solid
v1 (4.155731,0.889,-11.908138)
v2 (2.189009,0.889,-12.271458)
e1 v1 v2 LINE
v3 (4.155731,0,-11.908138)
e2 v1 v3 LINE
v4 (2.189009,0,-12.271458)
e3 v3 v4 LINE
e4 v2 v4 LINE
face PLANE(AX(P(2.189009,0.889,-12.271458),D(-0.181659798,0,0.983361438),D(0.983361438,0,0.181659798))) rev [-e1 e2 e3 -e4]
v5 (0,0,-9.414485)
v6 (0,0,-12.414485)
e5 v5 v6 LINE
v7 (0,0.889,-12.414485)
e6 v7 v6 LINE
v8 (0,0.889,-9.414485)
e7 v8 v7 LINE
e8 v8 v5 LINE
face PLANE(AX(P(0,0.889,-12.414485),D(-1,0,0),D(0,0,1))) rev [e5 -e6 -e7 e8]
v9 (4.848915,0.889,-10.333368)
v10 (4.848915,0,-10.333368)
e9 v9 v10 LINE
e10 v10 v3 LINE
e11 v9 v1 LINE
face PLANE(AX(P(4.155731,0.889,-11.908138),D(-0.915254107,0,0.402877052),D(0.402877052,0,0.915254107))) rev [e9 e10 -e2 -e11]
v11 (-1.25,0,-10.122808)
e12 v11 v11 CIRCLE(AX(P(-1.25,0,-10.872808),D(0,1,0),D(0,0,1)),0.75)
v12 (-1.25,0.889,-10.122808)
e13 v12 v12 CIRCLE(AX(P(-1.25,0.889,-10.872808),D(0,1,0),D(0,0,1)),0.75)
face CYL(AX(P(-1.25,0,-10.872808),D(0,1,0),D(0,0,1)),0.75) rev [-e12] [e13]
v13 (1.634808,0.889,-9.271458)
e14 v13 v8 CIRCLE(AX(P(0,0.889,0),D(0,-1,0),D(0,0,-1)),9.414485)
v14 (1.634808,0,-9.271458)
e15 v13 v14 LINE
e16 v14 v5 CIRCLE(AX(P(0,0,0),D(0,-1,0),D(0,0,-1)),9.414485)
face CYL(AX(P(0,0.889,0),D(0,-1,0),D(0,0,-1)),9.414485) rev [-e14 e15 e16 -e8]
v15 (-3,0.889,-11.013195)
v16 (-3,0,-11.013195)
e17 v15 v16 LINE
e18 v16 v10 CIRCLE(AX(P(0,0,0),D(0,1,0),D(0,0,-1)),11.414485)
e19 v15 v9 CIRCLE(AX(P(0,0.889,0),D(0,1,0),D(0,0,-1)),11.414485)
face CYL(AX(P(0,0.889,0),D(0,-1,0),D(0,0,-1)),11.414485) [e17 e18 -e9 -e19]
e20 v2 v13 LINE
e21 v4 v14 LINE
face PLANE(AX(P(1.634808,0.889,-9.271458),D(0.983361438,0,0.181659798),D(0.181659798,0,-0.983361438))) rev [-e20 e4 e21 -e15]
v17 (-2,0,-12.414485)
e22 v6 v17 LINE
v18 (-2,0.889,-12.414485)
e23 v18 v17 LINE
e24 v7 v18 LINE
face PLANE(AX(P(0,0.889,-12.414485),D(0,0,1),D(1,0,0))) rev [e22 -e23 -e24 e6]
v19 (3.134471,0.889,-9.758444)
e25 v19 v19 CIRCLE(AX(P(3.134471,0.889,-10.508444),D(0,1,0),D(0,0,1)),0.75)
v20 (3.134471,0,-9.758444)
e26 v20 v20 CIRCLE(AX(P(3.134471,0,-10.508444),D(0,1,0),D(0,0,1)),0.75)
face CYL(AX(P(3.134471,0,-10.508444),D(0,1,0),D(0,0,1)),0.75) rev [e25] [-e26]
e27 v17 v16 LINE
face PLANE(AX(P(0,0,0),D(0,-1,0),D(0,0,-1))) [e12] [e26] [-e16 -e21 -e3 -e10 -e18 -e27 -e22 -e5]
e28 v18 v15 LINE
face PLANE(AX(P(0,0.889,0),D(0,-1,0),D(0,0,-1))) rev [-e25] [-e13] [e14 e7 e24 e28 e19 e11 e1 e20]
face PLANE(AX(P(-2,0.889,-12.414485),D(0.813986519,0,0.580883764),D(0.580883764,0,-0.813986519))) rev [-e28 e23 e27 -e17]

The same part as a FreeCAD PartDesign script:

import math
import FreeCAD as App
import Part
import Sketcher
from FreeCAD import Vector

doc = App.newDocument("Part")
body = doc.addObject("PartDesign::Body", "Body")

# Sketch on XZ plane
sketch1 = body.newObject("Sketcher::SketchObject", "Sketch")
sketch1.AttachmentSupport = (doc.getObject("XZ_Plane"), [""])
sketch1.MapMode = "FlatFace"
sketch1.addGeometry(Part.LineSegment(Vector(0, -12.414485, 0), Vector(-2, -12.414485, 0)), False)
sketch1.addGeometry(Part.LineSegment(Vector(-2, -12.414485, 0), Vector(-3, -11.013195, 0)), False)
sketch1.addGeometry(Part.ArcOfCircle(Part.Circle(Vector(0, 0, 0), Vector(0, 0, 1), 11.414485), math.radians(-64.861764), math.radians(254.762308)), False)
sketch1.addGeometry(Part.LineSegment(Vector(4.848915, -10.333368, 0), Vector(4.155731, -11.908138, 0)), False)
sketch1.addGeometry(Part.LineSegment(Vector(4.155731, -11.908138, 0), Vector(2.189009, -12.271458, 0)), False)
sketch1.addGeometry(Part.LineSegment(Vector(2.189009, -12.271458, 0), Vector(1.634808, -9.271458, 0)), False)
sketch1.addGeometry(Part.ArcOfCircle(Part.Circle(Vector(0, 0, 0), Vector(0, 0, 1), 9.414485), math.radians(-80), math.radians(270)), False)
sketch1.addGeometry(Part.LineSegment(Vector(0, -9.414485, 0), Vector(0, -12.414485, 0)), False)
sketch1.addConstraint(Sketcher.Constraint("Coincident", 0, 2, 1, 1))
sketch1.addConstraint(Sketcher.Constraint("Coincident", 1, 2, 2, 2))
sketch1.addConstraint(Sketcher.Constraint("Coincident", 2, 1, 3, 1))
sketch1.addConstraint(Sketcher.Constraint("Coincident", 3, 2, 4, 1))
sketch1.addConstraint(Sketcher.Constraint("Coincident", 4, 2, 5, 1))
sketch1.addConstraint(Sketcher.Constraint("Coincident", 5, 2, 6, 1))
sketch1.addConstraint(Sketcher.Constraint("Coincident", 6, 2, 7, 1))
sketch1.addConstraint(Sketcher.Constraint("Coincident", 7, 2, 0, 1))
sketch1.addConstraint(Sketcher.Constraint("Horizontal", 0))
sketch1.addConstraint(Sketcher.Constraint("Vertical", 7))
sketch1.addConstraint(Sketcher.Constraint("Coincident", 2, 3, -1, 1))
sketch1.addConstraint(Sketcher.Constraint("Coincident", 6, 3, -1, 1))
sketch1.addConstraint(Sketcher.Constraint("PointOnObject", 6, 2, -2))
sketch1.addConstraint(Sketcher.Constraint("Perpendicular", 4, 5))
sketch1.addConstraint(Sketcher.Constraint("DistanceX", 0, 2, 0, 1, 2.0))
sketch1.addConstraint(Sketcher.Constraint("DistanceY", 7, 2, 7, 1, 3.0))
sketch1.addConstraint(Sketcher.Constraint("Distance", 4, 2.0))
sketch1.addConstraint(Sketcher.Constraint("DistanceX", 1, 2, -1, 1, 3.0))
sketch1.addConstraint(Sketcher.Constraint("DistanceY", 4, 2, 5, 2, 3.0))
sketch1.addConstraint(Sketcher.Constraint("Radius", 2, 11.414485))
sketch1.addConstraint(Sketcher.Constraint("Radius", 6, 9.414485))
sketch1.addConstraint(Sketcher.Constraint("DistanceX", 5, 2, 4, 2, 0.5542))
sketch1.addConstraint(Sketcher.Constraint("DistanceX", -1, 1, 3, 2, 4.155731))
sketch1.addConstraint(Sketcher.Constraint("DistanceY", 3, 2, 2, 1, 1.57477))
pad1 = body.newObject("PartDesign::Pad", "Pad")
pad1.Profile = sketch1
pad1.Length = 0.889
pad1.Reversed = True

# Sketch on XZ plane
sketch2 = body.newObject("Sketcher::SketchObject", "Sketch001")
sketch2.AttachmentSupport = (doc.getObject("XZ_Plane"), [""])
sketch2.MapMode = "FlatFace"
sketch2.AttachmentOffset = App.Placement(Vector(0, 0, -0.889), App.Rotation())
sketch2.addGeometry(Part.Circle(Vector(-1.25, -10.872808, 0), Vector(0, 0, 1), 0.75), False)
sketch2.addGeometry(Part.Circle(Vector(3.134471, -10.508444, 0), Vector(0, 0, 1), 0.75), False)
sketch2.addConstraint(Sketcher.Constraint("Equal", 0, 1))
sketch2.addConstraint(Sketcher.Constraint("Diameter", 0, 1.5))
sketch2.addConstraint(Sketcher.Constraint("DistanceX", 0, 3, -1, 1, 1.25))
sketch2.addConstraint(Sketcher.Constraint("DistanceY", 0, 3, -1, 1, 10.872808))
sketch2.addConstraint(Sketcher.Constraint("DistanceX", -1, 1, 1, 3, 3.134471))
sketch2.addConstraint(Sketcher.Constraint("DistanceY", 1, 3, -1, 1, 10.508444))
pocket1 = body.newObject("PartDesign::Pocket", "Pocket")
pocket1.Profile = sketch2
pocket1.Length = 0.889
pocket1.Reversed = True

doc.recompute()
